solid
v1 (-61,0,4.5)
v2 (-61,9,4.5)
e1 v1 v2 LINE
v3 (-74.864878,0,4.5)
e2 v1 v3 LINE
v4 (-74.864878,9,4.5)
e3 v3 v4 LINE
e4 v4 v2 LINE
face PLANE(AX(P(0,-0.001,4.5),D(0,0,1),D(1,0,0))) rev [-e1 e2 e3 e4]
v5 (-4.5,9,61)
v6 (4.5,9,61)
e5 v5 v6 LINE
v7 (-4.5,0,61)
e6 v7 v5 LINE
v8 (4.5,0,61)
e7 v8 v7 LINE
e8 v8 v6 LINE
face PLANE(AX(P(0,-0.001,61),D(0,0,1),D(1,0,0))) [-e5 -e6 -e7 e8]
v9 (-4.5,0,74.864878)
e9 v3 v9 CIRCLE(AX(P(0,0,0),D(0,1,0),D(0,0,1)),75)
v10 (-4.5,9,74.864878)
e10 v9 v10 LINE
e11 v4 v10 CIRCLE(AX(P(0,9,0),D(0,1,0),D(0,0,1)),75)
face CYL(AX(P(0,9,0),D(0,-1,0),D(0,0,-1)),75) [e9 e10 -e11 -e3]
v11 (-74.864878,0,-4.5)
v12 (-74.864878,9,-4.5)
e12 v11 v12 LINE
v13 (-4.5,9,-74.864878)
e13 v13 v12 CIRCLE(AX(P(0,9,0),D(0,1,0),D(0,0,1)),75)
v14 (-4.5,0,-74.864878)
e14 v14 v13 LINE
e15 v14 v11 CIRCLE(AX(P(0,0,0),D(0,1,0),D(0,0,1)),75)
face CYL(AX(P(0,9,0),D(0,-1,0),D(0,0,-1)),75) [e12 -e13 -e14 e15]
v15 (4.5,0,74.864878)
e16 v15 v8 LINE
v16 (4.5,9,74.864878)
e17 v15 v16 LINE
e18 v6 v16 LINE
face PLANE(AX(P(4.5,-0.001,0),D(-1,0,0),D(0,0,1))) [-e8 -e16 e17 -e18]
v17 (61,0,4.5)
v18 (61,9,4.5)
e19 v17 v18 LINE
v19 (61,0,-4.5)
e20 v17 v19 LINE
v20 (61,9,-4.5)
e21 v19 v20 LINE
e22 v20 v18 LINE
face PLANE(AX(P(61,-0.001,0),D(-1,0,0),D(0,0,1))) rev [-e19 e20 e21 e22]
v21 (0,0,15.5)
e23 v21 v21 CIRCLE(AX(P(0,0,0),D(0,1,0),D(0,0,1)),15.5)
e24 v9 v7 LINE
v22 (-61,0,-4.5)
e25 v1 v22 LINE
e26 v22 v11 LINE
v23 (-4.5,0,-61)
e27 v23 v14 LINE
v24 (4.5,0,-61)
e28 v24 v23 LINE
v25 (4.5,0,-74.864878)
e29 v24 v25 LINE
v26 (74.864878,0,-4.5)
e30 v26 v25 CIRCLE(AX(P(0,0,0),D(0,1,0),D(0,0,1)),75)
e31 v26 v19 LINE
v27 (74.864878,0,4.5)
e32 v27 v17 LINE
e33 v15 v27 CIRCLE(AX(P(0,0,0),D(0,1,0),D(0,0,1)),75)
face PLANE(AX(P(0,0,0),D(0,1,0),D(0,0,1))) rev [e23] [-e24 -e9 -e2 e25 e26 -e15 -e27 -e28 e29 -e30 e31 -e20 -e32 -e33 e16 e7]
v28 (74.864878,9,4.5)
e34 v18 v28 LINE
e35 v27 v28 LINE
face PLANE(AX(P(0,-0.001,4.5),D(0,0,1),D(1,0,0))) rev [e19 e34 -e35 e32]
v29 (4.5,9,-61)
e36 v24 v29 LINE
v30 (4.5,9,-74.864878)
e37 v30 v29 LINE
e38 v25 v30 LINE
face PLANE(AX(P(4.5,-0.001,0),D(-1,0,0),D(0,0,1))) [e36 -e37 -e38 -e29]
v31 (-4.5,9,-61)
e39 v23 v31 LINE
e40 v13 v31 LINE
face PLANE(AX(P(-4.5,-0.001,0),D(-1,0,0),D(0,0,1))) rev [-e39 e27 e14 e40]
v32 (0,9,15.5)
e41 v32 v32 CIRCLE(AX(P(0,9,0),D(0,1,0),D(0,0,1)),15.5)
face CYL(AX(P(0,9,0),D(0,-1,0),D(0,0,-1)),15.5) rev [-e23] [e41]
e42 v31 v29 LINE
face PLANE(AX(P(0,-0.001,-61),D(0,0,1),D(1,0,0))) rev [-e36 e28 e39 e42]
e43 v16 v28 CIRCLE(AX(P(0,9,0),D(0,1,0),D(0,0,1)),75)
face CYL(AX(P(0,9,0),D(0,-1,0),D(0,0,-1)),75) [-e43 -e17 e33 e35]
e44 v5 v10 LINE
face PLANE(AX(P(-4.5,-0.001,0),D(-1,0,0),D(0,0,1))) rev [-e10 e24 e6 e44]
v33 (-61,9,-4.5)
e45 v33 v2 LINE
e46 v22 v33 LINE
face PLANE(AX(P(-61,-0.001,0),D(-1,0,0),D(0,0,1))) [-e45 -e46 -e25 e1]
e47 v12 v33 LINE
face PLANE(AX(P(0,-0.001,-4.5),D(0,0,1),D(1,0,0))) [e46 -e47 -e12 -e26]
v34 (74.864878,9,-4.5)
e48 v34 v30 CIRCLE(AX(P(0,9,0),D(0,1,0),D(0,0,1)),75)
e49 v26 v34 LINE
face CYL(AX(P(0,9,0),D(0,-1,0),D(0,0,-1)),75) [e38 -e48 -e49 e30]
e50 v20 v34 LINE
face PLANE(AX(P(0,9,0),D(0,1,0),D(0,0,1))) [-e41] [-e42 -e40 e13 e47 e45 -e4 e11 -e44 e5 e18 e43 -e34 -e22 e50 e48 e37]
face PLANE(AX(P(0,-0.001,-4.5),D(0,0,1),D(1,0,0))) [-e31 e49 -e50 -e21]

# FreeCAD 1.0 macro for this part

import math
import FreeCAD as App
import Part
import Sketcher

V = App.Vector

doc = App.newDocument("Part")
body = doc.addObject("PartDesign::Body", "Body")

sketch1 = doc.addObject("Sketcher::SketchObject", "Sketch")
body.addObject(sketch1)
sketch1.AttachmentSupport = (doc.XZ_Plane, [""])
sketch1.MapMode = "FlatFace"
sketch1.addGeometry(Part.Circle(V(0, 0, 0), V(0, 0, 1), 75), False)
sketch1.addGeometry(Part.Circle(V(0, 0, 0), V(0, 0, 1), 16), False)
sketch1.addConstraint(Sketcher.Constraint("Coincident", 0, 3, -1, 1))
sketch1.addConstraint(Sketcher.Constraint("Coincident", 1, 3, -1, 1))
sketch1.addConstraint(Sketcher.Constraint("Diameter", 0, 150.0))
sketch1.addConstraint(Sketcher.Constraint("Diameter", 1, 31.0))
pad1 = doc.addObject("PartDesign::Pad", "Pad")
body.addObject(pad1)
pad1.Profile = sketch1
pad1.Length = 9
pad1.Reversed = True

sketch2 = doc.addObject("Sketcher::SketchObject", "Sketch001")
body.addObject(sketch2)
sketch2.AttachmentSupport = (doc.XZ_Plane, [""])
sketch2.MapMode = "FlatFace"
sketch2.AttachmentOffset = App.Placement(V(0, 0, -9), App.Rotation())
sketch2.addGeometry(Part.ArcOfCircle(Part.Circle(V(0, 0, 0), V(0, 0, 1), 75), math.radians(-93.44), math.radians(-90)), False)
sketch2.addGeometry(Part.LineSegment(V(-4.5, -74.9, 0), V(-4.5, -61, 0)), False)
sketch2.addGeometry(Part.LineSegment(V(-4.5, -61, 0), V(4.5, -61, 0)), False)
sketch2.addGeometry(Part.LineSegment(V(4.5, -61, 0), V(4.5, -74.9, 0)), False)
sketch2.addGeometry(Part.ArcOfCircle(Part.Circle(V(0, 0, 0), V(0, 0, 1), 75), math.radians(-90), math.radians(-86.56)), False)
sketch2.addConstraint(Sketcher.Constraint("Coincident", 0, 1, 1, 1))
sketch2.addConstraint(Sketcher.Constraint("Coincident", 1, 2, 2, 1))
sketch2.addConstraint(Sketcher.Constraint("Coincident", 2, 2, 3, 1))
sketch2.addConstraint(Sketcher.Constraint("Coincident", 3, 2, 4, 2))
sketch2.addConstraint(Sketcher.Constraint("Tangent", 4, 1, 0, 2))
sketch2.addConstraint(Sketcher.Constraint("Vertical", 1))
sketch2.addConstraint(Sketcher.Constraint("Horizontal", 2))
sketch2.addConstraint(Sketcher.Constraint("Vertical", 3))
sketch2.addConstraint(Sketcher.Constraint("Coincident", 0, 3, -1, 1))
sketch2.addConstraint(Sketcher.Constraint("Equal", 0, 4))
sketch2.addConstraint(Sketcher.Constraint("PointOnObject", 4, 1, -2))
sketch2.addConstraint(Sketcher.Constraint("Horizontal", 0, 1, 3, 2))
sketch2.addConstraint(Sketcher.Constraint("Radius", 0, 75.000001))
sketch2.addConstraint(Sketcher.Constraint("DistanceX", 2, 1, 2, 2, 9.0))
sketch2.addConstraint(Sketcher.Constraint("DistanceY", 1, 2, -1, 1, 61.0))
pocket1 = doc.addObject("PartDesign::Pocket", "Pocket")
body.addObject(pocket1)
pocket1.Profile = sketch2
pocket1.Type = "UpToFirst"
pocket1.Reversed = True

sketch3 = doc.addObject("Sketcher::SketchObject", "Sketch002")
body.addObject(sketch3)
sketch3.AttachmentSupport = (doc.XZ_Plane, [""])
sketch3.MapMode = "FlatFace"
sketch3.AttachmentOffset = App.Placement(V(0, 0, -9), App.Rotation())
sketch3.addGeometry(Part.LineSegment(V(61, 4.5, 0), V(74.9, 4.5, 0)), False)
sketch3.addGeometry(Part.ArcOfCircle(Part.Circle(V(0, 0, 0), V(0, 0, 1), 75), math.radians(0), math.radians(3.44)), False)
sketch3.addGeometry(Part.ArcOfCircle(Part.Circle(V(0, 0, 0), V(0, 0, 1), 75), math.radians(-3.44), math.radians(0)), False)
sketch3.addGeometry(Part.LineSegment(V(74.9, -4.5, 0), V(61, -4.5, 0)), False)
sketch3.addGeometry(Part.LineSegment(V(61, -4.5, 0), V(61, 4.5, 0)), False)
sketch3.addConstraint(Sketcher.Constraint("Coincident", 0, 2, 1, 2))
sketch3.addConstraint(Sketcher.Constraint("Tangent", 1, 1, 2, 2))
sketch3.addConstraint(Sketcher.Constraint("Coincident", 2, 1, 3, 1))
sketch3.addConstraint(Sketcher.Constraint("Coincident", 3, 2, 4, 1))
sketch3.addConstraint(Sketcher.Constraint("Coincident", 4, 2, 0, 1))
sketch3.addConstraint(Sketcher.Constraint("Horizontal", 0))
sketch3.addConstraint(Sketcher.Constraint("Horizontal", 3))
sketch3.addConstraint(Sketcher.Constraint("Vertical", 4))
sketch3.addConstraint(Sketcher.Constraint("Coincident", 1, 3, -1, 1))
sketch3.addConstraint(Sketcher.Constraint("Equal", 1, 2))
sketch3.addConstraint(Sketcher.Constraint("PointOnObject", 1, 1, -1))
sketch3.addConstraint(Sketcher.Constraint("Vertical", 0, 2, 2, 1))
sketch3.addConstraint(Sketcher.Constraint("Radius", 1, 75.000001))
sketch3.addConstraint(Sketcher.Constraint("DistanceY", 4, 1, 4, 2, 9.0))
sketch3.addConstraint(Sketcher.Constraint("DistanceX", -1, 1, 3, 2, 61.0))
pocket2 = doc.addObject("PartDesign::Pocket", "Pocket001")
body.addObject(pocket2)
pocket2.Profile = sketch3
pocket2.Type = "UpToFirst"
pocket2.Reversed = True

sketch4 = doc.addObject("Sketcher::SketchObject", "Sketch003")
body.addObject(sketch4)
sketch4.AttachmentSupport = (doc.XZ_Plane, [""])
sketch4.MapMode = "FlatFace"
sketch4.AttachmentOffset = App.Placement(V(0, 0, -9), App.Rotation())
sketch4.addGeometry(Part.LineSegment(V(-4.5, 61, 0), V(-4.5, 74.9, 0)), False)
sketch4.addGeometry(Part.ArcOfCircle(Part.Circle(V(0, 0, 0), V(0, 0, 1), 75), math.radians(90), math.radians(93.44)), False)
sketch4.addGeometry(Part.ArcOfCircle(Part.Circle(V(0, 0, 0), V(0, 0, 1), 75), math.radians(86.56), math.radians(90)), False)
sketch4.addGeometry(Part.LineSegment(V(4.5, 74.9, 0), V(4.5, 61, 0)), False)
sketch4.addGeometry(Part.LineSegment(V(4.5, 61, 0), V(-4.5, 61, 0)), False)
sketch4.addConstraint(Sketcher.Constraint("Coincident", 0, 2, 1, 2))
sketch4.addConstraint(Sketcher.Constraint("Tangent", 1, 1, 2, 2))
sketch4.addConstraint(Sketcher.Constraint("Coincident", 2, 1, 3, 1))
sketch4.addConstraint(Sketcher.Constraint("Coincident", 3, 2, 4, 1))
sketch4.addConstraint(Sketcher.Constraint("Coincident", 4, 2, 0, 1))
sketch4.addConstraint(Sketcher.Constraint("Vertical", 0))
sketch4.addConstraint(Sketcher.Constraint("Vertical", 3))
sketch4.addConstraint(Sketcher.Constraint("Horizontal", 4))
sketch4.addConstraint(Sketcher.Constraint("Coincident", 1, 3, -1, 1))
sketch4.addConstraint(Sketcher.Constraint("Equal", 1, 2))
sketch4.addConstraint(Sketcher.Constraint("PointOnObject", 1, 1, -2))
sketch4.addConstraint(Sketcher.Constraint("Horizontal", 0, 2, 2, 1))
sketch4.addConstraint(Sketcher.Constraint("Radius", 1, 75.000001))
sketch4.addConstraint(Sketcher.Constraint("DistanceX", 4, 2, 4, 1, 9.0))
sketch4.addConstraint(Sketcher.Constraint("DistanceY", -1, 1, 3, 2, 61.0))
pocket3 = doc.addObject("PartDesign::Pocket", "Pocket002")
body.addObject(pocket3)
pocket3.Profile = sketch4
pocket3.Type = "UpToFirst"
pocket3.Reversed = True

sketch5 = doc.addObject("Sketcher::SketchObject", "Sketch004")
body.addObject(sketch5)
sketch5.AttachmentSupport = (doc.XZ_Plane, [""])
sketch5.MapMode = "FlatFace"
sketch5.AttachmentOffset = App.Placement(V(0, 0, -9), App.Rotation())
sketch5.addGeometry(Part.ArcOfCircle(Part.Circle(V(0, 0, 0), V(0, 0, 1), 75), math.radians(176.56), math.radians(180)), False)
sketch5.addGeometry(Part.LineSegment(V(-74.9, 4.5, 0), V(-61, 4.5, 0)), False)
sketch5.addGeometry(Part.LineSegment(V(-61, 4.5, 0), V(-61, -4.5, 0)), False)
sketch5.addGeometry(Part.LineSegment(V(-61, -4.5, 0), V(-74.9, -4.5, 0)), False)
sketch5.addGeometry(Part.ArcOfCircle(Part.Circle(V(0, 0, 0), V(0, 0, 1), 75), math.radians(-180), math.radians(-176.56)), False)
sketch5.addConstraint(Sketcher.Constraint("Coincident", 0, 1, 1, 1))
sketch5.addConstraint(Sketcher.Constraint("Coincident", 1, 2, 2, 1))
sketch5.addConstraint(Sketcher.Constraint("Coincident", 2, 2, 3, 1))
sketch5.addConstraint(Sketcher.Constraint("Coincident", 3, 2, 4, 2))
sketch5.addConstraint(Sketcher.Constraint("Tangent", 4, 1, 0, 2))
sketch5.addConstraint(Sketcher.Constraint("Horizontal", 1))
sketch5.addConstraint(Sketcher.Constraint("Vertical", 2))
sketch5.addConstraint(Sketcher.Constraint("Horizontal", 3))
sketch5.addConstraint(Sketcher.Constraint("Coincident", 0, 3, -1, 1))
sketch5.addConstraint(Sketcher.Constraint("Equal", 0, 4))
sketch5.addConstraint(Sketcher.Constraint("PointOnObject", 4, 1, -1))
sketch5.addConstraint(Sketcher.Constraint("Vertical", 0, 1, 3, 2))
sketch5.addConstraint(Sketcher.Constraint("Radius", 0, 75.000001))
sketch5.addConstraint(Sketcher.Constraint("DistanceY", 2, 2, 2, 1, 9.0))
sketch5.addConstraint(Sketcher.Constraint("DistanceX", 1, 2, -1, 1, 61.0))
pocket4 = doc.addObject("PartDesign::Pocket", "Pocket003")
body.addObject(pocket4)
pocket4.Profile = sketch5
pocket4.Type = "UpToFirst"
pocket4.Reversed = True

doc.recompute()
